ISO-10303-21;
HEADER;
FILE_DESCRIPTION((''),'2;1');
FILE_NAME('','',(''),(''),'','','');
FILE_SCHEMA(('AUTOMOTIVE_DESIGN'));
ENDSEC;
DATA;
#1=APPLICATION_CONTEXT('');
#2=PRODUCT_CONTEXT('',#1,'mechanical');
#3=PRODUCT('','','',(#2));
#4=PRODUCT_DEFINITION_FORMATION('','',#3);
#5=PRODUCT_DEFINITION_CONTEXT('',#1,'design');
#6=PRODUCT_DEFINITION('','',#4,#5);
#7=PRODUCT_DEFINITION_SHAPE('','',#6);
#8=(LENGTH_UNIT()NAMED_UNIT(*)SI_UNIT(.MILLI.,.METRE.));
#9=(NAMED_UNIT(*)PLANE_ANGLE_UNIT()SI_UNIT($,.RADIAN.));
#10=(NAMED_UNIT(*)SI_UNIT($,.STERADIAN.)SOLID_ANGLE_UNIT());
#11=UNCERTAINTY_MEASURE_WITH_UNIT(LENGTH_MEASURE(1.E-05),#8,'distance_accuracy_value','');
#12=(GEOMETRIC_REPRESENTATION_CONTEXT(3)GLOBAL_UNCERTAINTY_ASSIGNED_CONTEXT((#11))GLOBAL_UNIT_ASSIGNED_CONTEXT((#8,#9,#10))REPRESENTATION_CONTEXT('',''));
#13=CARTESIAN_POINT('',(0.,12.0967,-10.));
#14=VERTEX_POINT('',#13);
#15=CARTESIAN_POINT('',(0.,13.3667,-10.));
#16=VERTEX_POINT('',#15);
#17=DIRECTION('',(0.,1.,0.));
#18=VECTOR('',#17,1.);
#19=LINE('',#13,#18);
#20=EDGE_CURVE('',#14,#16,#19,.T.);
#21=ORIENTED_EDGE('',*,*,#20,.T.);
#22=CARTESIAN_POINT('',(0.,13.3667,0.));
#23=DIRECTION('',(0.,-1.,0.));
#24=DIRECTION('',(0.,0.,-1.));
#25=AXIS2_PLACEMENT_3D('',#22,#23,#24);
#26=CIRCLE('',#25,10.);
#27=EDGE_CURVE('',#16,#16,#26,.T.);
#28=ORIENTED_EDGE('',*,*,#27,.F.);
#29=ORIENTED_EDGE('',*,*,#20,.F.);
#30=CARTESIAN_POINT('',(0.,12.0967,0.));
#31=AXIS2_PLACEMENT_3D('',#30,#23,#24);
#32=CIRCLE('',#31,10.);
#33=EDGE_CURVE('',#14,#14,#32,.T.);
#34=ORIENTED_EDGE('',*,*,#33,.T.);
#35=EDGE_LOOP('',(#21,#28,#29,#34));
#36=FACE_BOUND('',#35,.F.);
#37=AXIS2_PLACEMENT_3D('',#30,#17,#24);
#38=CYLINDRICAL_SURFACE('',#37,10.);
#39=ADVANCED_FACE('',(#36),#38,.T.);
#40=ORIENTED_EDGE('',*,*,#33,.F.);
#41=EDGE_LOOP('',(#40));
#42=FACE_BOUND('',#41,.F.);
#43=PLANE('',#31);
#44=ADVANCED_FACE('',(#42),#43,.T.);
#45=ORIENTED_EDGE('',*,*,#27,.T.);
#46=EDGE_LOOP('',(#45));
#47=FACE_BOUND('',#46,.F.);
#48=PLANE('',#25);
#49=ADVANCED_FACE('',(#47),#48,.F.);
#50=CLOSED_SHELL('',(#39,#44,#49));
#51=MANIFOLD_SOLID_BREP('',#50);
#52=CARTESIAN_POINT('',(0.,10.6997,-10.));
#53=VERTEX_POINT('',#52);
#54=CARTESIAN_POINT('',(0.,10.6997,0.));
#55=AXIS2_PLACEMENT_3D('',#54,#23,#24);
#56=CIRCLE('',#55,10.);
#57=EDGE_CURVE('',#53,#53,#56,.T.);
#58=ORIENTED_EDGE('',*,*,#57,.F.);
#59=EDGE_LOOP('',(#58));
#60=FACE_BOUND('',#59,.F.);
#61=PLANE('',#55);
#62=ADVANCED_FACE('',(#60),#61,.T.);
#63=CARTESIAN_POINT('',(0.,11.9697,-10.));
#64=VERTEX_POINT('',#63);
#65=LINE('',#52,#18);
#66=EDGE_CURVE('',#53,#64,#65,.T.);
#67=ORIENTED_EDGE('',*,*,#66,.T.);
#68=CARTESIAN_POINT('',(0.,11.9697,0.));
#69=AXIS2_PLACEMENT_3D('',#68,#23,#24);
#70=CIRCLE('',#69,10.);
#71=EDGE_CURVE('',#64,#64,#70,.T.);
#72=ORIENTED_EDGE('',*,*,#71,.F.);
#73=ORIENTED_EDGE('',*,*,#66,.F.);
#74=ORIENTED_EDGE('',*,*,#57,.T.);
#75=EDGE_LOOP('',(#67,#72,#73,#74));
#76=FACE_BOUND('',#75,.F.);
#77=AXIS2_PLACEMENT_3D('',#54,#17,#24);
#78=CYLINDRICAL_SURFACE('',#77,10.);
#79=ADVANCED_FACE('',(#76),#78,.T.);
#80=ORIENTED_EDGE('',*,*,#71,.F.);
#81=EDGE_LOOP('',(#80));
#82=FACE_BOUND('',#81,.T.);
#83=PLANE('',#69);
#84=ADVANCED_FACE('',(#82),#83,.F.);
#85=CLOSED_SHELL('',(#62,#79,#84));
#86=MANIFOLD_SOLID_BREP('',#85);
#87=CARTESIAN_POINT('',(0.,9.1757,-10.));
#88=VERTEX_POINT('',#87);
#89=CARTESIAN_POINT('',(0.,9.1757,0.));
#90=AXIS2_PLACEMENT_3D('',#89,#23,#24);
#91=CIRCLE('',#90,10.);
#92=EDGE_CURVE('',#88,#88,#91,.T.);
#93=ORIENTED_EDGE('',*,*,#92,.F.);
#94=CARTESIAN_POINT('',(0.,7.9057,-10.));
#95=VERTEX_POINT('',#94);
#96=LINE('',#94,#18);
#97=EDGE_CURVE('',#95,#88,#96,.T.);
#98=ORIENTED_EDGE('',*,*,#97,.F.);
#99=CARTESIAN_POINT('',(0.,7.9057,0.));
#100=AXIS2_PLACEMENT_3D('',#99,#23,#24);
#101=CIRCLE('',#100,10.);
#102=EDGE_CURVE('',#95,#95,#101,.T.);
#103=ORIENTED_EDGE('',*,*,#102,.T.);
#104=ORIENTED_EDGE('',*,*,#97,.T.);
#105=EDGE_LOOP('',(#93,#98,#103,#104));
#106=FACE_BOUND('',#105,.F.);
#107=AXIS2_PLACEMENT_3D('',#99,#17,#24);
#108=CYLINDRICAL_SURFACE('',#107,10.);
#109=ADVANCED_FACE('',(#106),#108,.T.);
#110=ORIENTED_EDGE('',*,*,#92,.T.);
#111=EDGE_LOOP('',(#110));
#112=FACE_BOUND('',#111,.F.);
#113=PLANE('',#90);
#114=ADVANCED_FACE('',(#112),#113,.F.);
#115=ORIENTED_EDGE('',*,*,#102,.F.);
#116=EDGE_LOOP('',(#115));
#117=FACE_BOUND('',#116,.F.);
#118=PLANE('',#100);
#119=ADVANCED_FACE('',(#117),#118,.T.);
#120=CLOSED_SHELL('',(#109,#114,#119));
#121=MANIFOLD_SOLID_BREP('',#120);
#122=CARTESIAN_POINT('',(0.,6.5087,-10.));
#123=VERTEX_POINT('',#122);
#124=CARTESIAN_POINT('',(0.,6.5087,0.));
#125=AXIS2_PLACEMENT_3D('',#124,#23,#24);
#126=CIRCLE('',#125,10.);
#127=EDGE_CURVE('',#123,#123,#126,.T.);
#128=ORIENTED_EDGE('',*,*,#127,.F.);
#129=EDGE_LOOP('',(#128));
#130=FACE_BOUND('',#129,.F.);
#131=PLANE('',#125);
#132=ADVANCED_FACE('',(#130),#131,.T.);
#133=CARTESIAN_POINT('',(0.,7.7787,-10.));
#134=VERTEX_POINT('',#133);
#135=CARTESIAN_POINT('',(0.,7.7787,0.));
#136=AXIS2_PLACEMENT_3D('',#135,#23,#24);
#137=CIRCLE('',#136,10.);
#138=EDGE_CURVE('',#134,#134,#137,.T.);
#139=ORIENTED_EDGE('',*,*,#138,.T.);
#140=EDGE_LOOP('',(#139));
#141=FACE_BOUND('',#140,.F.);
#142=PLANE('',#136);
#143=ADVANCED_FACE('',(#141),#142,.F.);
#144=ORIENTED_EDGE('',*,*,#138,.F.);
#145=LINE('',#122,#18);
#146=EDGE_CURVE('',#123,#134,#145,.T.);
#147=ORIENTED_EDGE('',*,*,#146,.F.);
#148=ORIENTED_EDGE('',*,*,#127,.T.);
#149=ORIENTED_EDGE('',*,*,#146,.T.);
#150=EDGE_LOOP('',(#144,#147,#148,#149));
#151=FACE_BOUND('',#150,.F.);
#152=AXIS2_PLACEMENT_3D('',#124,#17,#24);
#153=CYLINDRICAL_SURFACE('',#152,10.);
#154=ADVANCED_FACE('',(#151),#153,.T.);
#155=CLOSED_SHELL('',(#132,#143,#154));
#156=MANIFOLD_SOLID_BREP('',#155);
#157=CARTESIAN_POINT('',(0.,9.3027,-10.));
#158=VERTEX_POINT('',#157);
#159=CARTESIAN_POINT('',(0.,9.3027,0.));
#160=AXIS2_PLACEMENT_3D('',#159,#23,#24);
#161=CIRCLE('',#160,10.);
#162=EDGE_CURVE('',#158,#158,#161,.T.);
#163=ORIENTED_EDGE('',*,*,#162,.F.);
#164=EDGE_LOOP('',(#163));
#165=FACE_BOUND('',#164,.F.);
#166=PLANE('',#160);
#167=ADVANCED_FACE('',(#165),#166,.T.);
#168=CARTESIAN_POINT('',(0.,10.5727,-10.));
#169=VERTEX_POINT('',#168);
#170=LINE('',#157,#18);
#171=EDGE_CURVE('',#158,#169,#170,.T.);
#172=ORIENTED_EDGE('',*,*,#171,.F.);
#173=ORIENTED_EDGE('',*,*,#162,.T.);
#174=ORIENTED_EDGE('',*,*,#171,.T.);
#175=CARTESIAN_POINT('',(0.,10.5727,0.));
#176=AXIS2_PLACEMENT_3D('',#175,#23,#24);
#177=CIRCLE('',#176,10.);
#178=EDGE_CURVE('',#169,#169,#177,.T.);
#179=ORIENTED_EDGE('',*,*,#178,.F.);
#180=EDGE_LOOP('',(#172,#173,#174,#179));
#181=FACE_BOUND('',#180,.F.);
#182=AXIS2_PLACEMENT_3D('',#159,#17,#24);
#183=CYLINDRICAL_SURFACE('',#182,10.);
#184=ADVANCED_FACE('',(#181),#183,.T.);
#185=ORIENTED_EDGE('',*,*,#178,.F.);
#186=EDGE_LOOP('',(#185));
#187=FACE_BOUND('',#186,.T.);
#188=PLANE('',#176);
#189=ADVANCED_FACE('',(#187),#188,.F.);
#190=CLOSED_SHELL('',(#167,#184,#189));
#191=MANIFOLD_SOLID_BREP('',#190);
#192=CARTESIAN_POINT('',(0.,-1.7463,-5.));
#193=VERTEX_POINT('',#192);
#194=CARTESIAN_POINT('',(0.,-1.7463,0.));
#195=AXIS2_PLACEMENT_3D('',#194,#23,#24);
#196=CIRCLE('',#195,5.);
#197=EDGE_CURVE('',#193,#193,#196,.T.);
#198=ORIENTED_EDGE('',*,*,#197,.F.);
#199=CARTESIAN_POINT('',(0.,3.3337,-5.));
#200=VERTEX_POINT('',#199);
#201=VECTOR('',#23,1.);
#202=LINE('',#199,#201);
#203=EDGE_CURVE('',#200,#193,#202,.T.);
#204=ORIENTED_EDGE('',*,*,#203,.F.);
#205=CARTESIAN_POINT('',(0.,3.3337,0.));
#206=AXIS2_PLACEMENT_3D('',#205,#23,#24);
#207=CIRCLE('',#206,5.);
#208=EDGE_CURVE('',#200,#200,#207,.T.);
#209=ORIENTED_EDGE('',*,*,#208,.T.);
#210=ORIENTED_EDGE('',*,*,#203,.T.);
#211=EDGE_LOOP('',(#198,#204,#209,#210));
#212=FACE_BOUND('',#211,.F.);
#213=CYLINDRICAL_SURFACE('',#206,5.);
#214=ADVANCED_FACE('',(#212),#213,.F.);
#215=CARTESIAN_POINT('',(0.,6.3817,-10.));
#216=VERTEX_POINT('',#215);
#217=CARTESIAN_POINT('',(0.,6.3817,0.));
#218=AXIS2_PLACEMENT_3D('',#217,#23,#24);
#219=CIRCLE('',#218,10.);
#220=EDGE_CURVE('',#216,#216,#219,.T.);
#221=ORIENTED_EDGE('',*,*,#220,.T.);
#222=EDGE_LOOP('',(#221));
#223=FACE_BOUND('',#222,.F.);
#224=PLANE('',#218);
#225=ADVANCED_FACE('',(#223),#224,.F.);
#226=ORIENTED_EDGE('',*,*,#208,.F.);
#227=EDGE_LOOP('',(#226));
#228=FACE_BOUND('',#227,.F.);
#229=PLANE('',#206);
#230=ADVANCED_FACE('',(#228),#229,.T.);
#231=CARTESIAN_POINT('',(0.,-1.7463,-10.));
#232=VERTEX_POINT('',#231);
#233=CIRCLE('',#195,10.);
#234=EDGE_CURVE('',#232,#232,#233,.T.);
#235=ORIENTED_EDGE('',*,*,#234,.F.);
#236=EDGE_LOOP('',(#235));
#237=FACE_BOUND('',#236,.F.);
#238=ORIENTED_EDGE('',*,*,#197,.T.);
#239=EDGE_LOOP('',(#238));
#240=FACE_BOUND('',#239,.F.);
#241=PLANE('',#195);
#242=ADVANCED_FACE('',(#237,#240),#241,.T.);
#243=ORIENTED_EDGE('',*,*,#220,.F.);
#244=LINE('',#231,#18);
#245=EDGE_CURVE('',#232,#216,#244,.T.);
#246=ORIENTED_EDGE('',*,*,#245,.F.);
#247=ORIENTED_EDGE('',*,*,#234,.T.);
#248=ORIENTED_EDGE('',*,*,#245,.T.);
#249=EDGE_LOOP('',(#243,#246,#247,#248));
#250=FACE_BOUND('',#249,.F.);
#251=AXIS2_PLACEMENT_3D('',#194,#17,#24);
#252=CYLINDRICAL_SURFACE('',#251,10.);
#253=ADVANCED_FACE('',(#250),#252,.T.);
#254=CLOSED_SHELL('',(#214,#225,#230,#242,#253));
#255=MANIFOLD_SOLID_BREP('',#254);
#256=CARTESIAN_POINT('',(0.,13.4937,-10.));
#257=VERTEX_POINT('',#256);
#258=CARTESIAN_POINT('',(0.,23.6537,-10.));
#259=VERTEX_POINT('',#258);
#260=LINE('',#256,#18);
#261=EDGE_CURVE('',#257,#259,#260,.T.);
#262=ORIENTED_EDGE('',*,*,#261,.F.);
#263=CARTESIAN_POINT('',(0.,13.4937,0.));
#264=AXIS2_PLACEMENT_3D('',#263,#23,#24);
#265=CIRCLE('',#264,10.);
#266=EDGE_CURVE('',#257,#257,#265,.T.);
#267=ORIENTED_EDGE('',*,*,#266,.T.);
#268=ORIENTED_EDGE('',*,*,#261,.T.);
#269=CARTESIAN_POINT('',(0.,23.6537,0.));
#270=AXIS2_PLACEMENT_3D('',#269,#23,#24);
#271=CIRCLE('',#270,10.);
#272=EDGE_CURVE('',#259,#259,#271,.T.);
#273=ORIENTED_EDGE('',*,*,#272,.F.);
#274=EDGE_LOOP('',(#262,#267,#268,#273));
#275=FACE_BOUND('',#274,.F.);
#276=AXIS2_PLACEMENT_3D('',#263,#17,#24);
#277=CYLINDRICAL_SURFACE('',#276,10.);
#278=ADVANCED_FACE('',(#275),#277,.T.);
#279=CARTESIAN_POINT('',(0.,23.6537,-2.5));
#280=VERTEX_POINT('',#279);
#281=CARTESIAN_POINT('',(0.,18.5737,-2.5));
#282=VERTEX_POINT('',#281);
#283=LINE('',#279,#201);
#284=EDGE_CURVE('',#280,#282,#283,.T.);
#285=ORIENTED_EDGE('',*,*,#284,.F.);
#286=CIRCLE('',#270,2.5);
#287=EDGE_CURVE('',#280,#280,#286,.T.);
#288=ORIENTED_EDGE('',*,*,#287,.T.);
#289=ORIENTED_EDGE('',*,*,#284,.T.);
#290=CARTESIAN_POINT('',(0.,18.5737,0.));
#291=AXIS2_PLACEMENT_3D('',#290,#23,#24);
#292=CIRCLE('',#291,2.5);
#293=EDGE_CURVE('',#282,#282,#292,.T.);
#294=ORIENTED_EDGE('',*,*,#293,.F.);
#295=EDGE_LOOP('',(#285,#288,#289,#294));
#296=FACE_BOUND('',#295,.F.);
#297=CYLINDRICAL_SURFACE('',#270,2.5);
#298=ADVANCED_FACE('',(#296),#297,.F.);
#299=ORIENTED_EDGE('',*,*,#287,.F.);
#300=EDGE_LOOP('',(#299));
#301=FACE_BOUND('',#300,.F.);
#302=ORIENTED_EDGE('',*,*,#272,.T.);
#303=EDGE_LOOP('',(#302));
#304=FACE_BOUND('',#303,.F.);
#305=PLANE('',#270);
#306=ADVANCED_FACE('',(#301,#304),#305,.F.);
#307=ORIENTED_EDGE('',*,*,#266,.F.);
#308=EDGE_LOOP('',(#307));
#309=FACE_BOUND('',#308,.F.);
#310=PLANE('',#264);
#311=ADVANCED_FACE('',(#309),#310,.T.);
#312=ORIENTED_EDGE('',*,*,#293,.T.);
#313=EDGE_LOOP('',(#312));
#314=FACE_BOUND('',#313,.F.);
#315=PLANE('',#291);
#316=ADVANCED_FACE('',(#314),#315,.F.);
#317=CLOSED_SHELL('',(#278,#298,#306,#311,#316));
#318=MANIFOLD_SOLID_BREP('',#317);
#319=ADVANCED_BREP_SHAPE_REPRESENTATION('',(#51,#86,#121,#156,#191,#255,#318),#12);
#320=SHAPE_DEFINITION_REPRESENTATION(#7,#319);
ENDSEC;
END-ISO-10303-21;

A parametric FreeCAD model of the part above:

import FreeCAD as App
import Part
import Sketcher

V = App.Vector
Q = App.Units.Quantity

doc = App.newDocument("Part")
body = doc.addObject("PartDesign::Body", "Body")
body.AllowCompound = True

sketch1 = body.newObject("Sketcher::SketchObject", "Sketch")
sketch1.AttachmentSupport = (doc.getObject("YZ_Plane"), [""])
sketch1.MapMode = "FlatFace"
sketch1.addGeometry([
    Part.LineSegment(V(6.4, 0, 0), V(3.3, 0, 0)),
    Part.LineSegment(V(3.3, 0, 0), V(3.3, -5, 0)),
    Part.LineSegment(V(3.3, -5, 0), V(-1.7, -5, 0)),
    Part.LineSegment(V(-1.7, -5, 0), V(-1.7, -10, 0)),
    Part.LineSegment(V(-1.7, -10, 0), V(6.4, -10, 0)),
    Part.LineSegment(V(6.4, -10, 0), V(6.4, 0, 0)),
    Part.LineSegment(V(13.5, -10, 0), V(23.7, -10, 0)),
    Part.LineSegment(V(23.7, -10, 0), V(23.7, -2.5, 0)),
    Part.LineSegment(V(23.7, -2.5, 0), V(18.6, -2.5, 0)),
    Part.LineSegment(V(18.6, -2.5, 0), V(18.6, 0, 0)),
    Part.LineSegment(V(18.6, 0, 0), V(13.5, 0, 0)),
    Part.LineSegment(V(13.5, 0, 0), V(13.5, -10, 0)),
    Part.LineSegment(V(12.1, -10, 0), V(13.4, -10, 0)),
    Part.LineSegment(V(13.4, -10, 0), V(13.4, 0, 0)),
    Part.LineSegment(V(13.4, 0, 0), V(12.1, 0, 0)),
    Part.LineSegment(V(12.1, 0, 0), V(12.1, -10, 0)),
    Part.LineSegment(V(12, -10, 0), V(12, 0, 0)),
    Part.LineSegment(V(12, 0, 0), V(10.7, 0, 0)),
    Part.LineSegment(V(10.7, 0, 0), V(10.7, -10, 0)),
    Part.LineSegment(V(10.7, -10, 0), V(12, -10, 0)),
    Part.LineSegment(V(10.6, -10, 0), V(10.6, 0, 0)),
    Part.LineSegment(V(10.6, 0, 0), V(9.3, 0, 0)),
    Part.LineSegment(V(9.3, 0, 0), V(9.3, -10, 0)),
    Part.LineSegment(V(9.3, -10, 0), V(10.6, -10, 0)),
    Part.LineSegment(V(7.9, -10, 0), V(9.2, -10, 0)),
    Part.LineSegment(V(9.2, -10, 0), V(9.2, 0, 0)),
    Part.LineSegment(V(9.2, 0, 0), V(7.9, 0, 0)),
    Part.LineSegment(V(7.9, 0, 0), V(7.9, -10, 0)),
    Part.LineSegment(V(6.5, -10, 0), V(7.8, -10, 0)),
    Part.LineSegment(V(7.8, -10, 0), V(7.8, 0, 0)),
    Part.LineSegment(V(7.8, 0, 0), V(6.5, 0, 0)),
    Part.LineSegment(V(6.5, 0, 0), V(6.5, -10, 0)),
], False)
sketch1.addConstraint([
    Sketcher.Constraint("Coincident", 0, 2, 1, 1),
    Sketcher.Constraint("Coincident", 1, 2, 2, 1),
    Sketcher.Constraint("Coincident", 2, 2, 3, 1),
    Sketcher.Constraint("Coincident", 3, 2, 4, 1),
    Sketcher.Constraint("Coincident", 4, 2, 5, 1),
    Sketcher.Constraint("Coincident", 5, 2, 0, 1),
    Sketcher.Constraint("Coincident", 6, 2, 7, 1),
    Sketcher.Constraint("Coincident", 7, 2, 8, 1),
    Sketcher.Constraint("Coincident", 8, 2, 9, 1),
    Sketcher.Constraint("Coincident", 9, 2, 10, 1),
    Sketcher.Constraint("Coincident", 10, 2, 11, 1),
    Sketcher.Constraint("Coincident", 11, 2, 6, 1),
    Sketcher.Constraint("Coincident", 12, 2, 13, 1),
    Sketcher.Constraint("Coincident", 13, 2, 14, 1),
    Sketcher.Constraint("Coincident", 14, 2, 15, 1),
    Sketcher.Constraint("Coincident", 15, 2, 12, 1),
    Sketcher.Constraint("Coincident", 16, 2, 17, 1),
    Sketcher.Constraint("Coincident", 17, 2, 18, 1),
    Sketcher.Constraint("Coincident", 18, 2, 19, 1),
    Sketcher.Constraint("Coincident", 19, 2, 16, 1),
    Sketcher.Constraint("Coincident", 20, 2, 21, 1),
    Sketcher.Constraint("Coincident", 21, 2, 22, 1),
    Sketcher.Constraint("Coincident", 22, 2, 23, 1),
    Sketcher.Constraint("Coincident", 23, 2, 20, 1),
    Sketcher.Constraint("Coincident", 24, 2, 25, 1),
    Sketcher.Constraint("Coincident", 25, 2, 26, 1),
    Sketcher.Constraint("Coincident", 26, 2, 27, 1),
    Sketcher.Constraint("Coincident", 27, 2, 24, 1),
    Sketcher.Constraint("Coincident", 28, 2, 29, 1),
    Sketcher.Constraint("Coincident", 29, 2, 30, 1),
    Sketcher.Constraint("Coincident", 30, 2, 31, 1),
    Sketcher.Constraint("Coincident", 31, 2, 28, 1),
    Sketcher.Constraint("Horizontal", 0),
    Sketcher.Constraint("Vertical", 1),
    Sketcher.Constraint("Horizontal", 2),
    Sketcher.Constraint("Vertical", 3),
    Sketcher.Constraint("Horizontal", 4),
    Sketcher.Constraint("Vertical", 5),
    Sketcher.Constraint("Horizontal", 6),
    Sketcher.Constraint("Vertical", 7),
    Sketcher.Constraint("Horizontal", 8),
    Sketcher.Constraint("Vertical", 9),
    Sketcher.Constraint("Horizontal", 10),
    Sketcher.Constraint("Vertical", 11),
    Sketcher.Constraint("Horizontal", 12),
    Sketcher.Constraint("Vertical", 13),
    Sketcher.Constraint("Horizontal", 14),
    Sketcher.Constraint("Vertical", 15),
    Sketcher.Constraint("Vertical", 16),
    Sketcher.Constraint("Horizontal", 17),
    Sketcher.Constraint("Vertical", 18),
    Sketcher.Constraint("Horizontal", 19),
    Sketcher.Constraint("Vertical", 20),
    Sketcher.Constraint("Horizontal", 21),
    Sketcher.Constraint("Vertical", 22),
    Sketcher.Constraint("Horizontal", 23),
    Sketcher.Constraint("Horizontal", 24),
    Sketcher.Constraint("Vertical", 25),
    Sketcher.Constraint("Horizontal", 26),
    Sketcher.Constraint("Vertical", 27),
    Sketcher.Constraint("Horizontal", 28),
    Sketcher.Constraint("Vertical", 29),
    Sketcher.Constraint("Horizontal", 30),
    Sketcher.Constraint("Vertical", 31),
    Sketcher.Constraint("PointOnObject", 0, 2, -1),
    Sketcher.Constraint("PointOnObject", 9, 2, -1),
    Sketcher.Constraint("PointOnObject", 13, 2, -1),
    Sketcher.Constraint("PointOnObject", 16, 2, -1),
    Sketcher.Constraint("PointOnObject", 20, 2, -1),
    Sketcher.Constraint("PointOnObject", 25, 2, -1),
    Sketcher.Constraint("PointOnObject", 29, 2, -1),
    Sketcher.Constraint("Horizontal", 4, 2, 6, 2),
    Sketcher.Constraint("Horizontal", 11, 2, 12, 2),
    Sketcher.Constraint("Horizontal", 15, 2, 18, 2),
    Sketcher.Constraint("Horizontal", 19, 2, 22, 2),
    Sketcher.Constraint("Horizontal", 23, 2, 24, 2),
    Sketcher.Constraint("Horizontal", 27, 2, 28, 2),
    Sketcher.Constraint("Equal", 2, 8),
    Sketcher.Constraint("Equal", 8, 10),
    Sketcher.Constraint("Equal", 14, 17),
    Sketcher.Constraint("Equal", 19, 21),
    Sketcher.Constraint("Equal", 23, 24),
    Sketcher.Constraint("Equal", 26, 28),
    Sketcher.Constraint("Equal", 1, 3),
    Sketcher.Constraint("DistanceX", 2, 2, 2, 1, Q("0.2 in")),
    Sketcher.Constraint("DistanceX", 3, 2, 6, 2, Q("1 in")),
    Sketcher.Constraint("DistanceX", 12, 1, 12, 2, Q("0.05 in")),
    Sketcher.Constraint("DistanceY", 5, 1, 5, 2, Q("0.3937 in")),
    Sketcher.Constraint("DistanceX", 12, 2, 11, 2, Q("0.005 in")),
    Sketcher.Constraint("DistanceX", 16, 2, 14, 2, Q("0.005 in")),
    Sketcher.Constraint("DistanceX", 20, 2, 17, 2, Q("0.005 in")),
    Sketcher.Constraint("DistanceX", 24, 2, 22, 2, Q("0.005 in")),
    Sketcher.Constraint("DistanceX", 28, 2, 27, 2, Q("0.005 in")),
    Sketcher.Constraint("DistanceX", 5, 2, 30, 2, Q("0.005 in")),
    Sketcher.Constraint("DistanceY", 9, 1, 9, 2, 2.5),
    Sketcher.Constraint("DistanceX", -1, 1, 10, 2, Q("0.531248 in")),
])
revolution = body.newObject("PartDesign::Revolution", "Revolution")
revolution.Profile = sketch1
revolution.ReferenceAxis = (sketch1, ["H_Axis"])
revolution.Angle = 360

doc.recompute()
